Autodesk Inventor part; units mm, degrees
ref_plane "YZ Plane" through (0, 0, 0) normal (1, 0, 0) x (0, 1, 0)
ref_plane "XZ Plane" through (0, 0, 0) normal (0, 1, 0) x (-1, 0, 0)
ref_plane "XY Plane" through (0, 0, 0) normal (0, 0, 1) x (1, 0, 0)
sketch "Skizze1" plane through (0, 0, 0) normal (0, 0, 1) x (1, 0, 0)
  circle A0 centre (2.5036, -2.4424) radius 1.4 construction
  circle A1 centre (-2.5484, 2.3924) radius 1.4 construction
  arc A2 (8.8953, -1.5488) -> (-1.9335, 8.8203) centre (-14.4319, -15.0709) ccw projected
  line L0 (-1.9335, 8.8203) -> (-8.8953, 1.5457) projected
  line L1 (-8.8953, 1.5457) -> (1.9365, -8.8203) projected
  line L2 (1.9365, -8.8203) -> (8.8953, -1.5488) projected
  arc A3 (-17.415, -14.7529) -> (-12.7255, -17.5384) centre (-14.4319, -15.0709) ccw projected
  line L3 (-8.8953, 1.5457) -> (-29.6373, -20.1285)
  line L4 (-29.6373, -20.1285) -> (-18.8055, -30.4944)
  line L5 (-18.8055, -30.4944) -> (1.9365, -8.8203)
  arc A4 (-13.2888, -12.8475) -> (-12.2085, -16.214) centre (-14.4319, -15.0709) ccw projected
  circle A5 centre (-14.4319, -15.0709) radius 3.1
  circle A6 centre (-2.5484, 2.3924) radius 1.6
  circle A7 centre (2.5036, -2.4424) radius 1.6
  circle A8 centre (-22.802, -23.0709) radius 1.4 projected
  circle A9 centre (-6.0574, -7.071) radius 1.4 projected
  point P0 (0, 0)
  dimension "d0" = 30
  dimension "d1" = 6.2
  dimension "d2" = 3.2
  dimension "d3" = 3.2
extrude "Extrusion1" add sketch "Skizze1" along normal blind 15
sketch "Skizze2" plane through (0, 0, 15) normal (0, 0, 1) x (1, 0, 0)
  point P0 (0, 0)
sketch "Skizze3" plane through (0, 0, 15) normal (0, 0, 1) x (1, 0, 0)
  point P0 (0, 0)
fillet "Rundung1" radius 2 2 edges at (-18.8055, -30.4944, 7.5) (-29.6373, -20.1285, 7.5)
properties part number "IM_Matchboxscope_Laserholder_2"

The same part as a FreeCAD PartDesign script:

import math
import FreeCAD as App
import Part
import Sketcher

V = App.Vector
Q = App.Units.Quantity


def edges_at(feature, points):
    """Names of the edges that pass closest to the given points."""
    edges = feature.Shape.Edges
    near = lambda p: min(range(len(edges)), key=lambda i: edges[i].distToShape(Part.Vertex(*p))[0])
    return sorted({f"Edge{near(p) + 1}" for p in points})

doc = App.newDocument("Part")
body = doc.addObject("PartDesign::Body", "Body")

# Sketch on XY plane
sketch1 = body.newObject("Sketcher::SketchObject", "Sketch")
sketch1.AttachmentSupport = (doc.getObject("XY_Plane"), [""])
sketch1.MapMode = "FlatFace"
sketch1.addGeometry([
    Part.LineSegment(V(1.9, -8.8, 0), V(8.9, -1.5, 0)),  # 0
    Part.ArcOfCircle(Part.Circle(V(-14.4, -15.1, 0), V(0, 0, 1), 27), math.radians(30), math.radians(62)),  # 1
    Part.LineSegment(V(-1.9, 8.8, 0), V(-8.9, 1.5, 0)),  # 2
    Part.LineSegment(V(-8.9, 1.5, 0), V(-29.6, -20.1, 0)),  # 3
    Part.LineSegment(V(-29.6, -20.1, 0), V(-18.8, -30.5, 0)),  # 4
    Part.LineSegment(V(-18.8, -30.5, 0), V(1.9, -8.8, 0)),  # 5
    Part.Circle(V(2.5, -2.4, 0), V(0, 0, 1), 1.6),  # 6
    Part.Circle(V(-2.5, 2.4, 0), V(0, 0, 1), 1.6),  # 7
    Part.Circle(V(-6.1, -7.1, 0), V(0, 0, 1), 1.4),  # 8
    Part.Circle(V(-22.8, -23.1, 0), V(0, 0, 1), 1.4),  # 9
    Part.Circle(V(-14.4, -15.1, 0), V(0, 0, 1), 3.1),  # 10
], False)
sketch1.addConstraint([
    Sketcher.Constraint("Coincident", 0, 2, 1, 1),
    Sketcher.Constraint("Coincident", 1, 2, 2, 1),
    Sketcher.Constraint("Coincident", 2, 2, 3, 1),
    Sketcher.Constraint("Coincident", 3, 2, 4, 1),
    Sketcher.Constraint("Coincident", 4, 2, 5, 1),
    Sketcher.Constraint("Coincident", 5, 2, 0, 1),
    Sketcher.Constraint("Equal", 6, 7),
    Sketcher.Constraint("Equal", 8, 9),
    Sketcher.Constraint("Parallel", 0, 2),
    Sketcher.Constraint("Parallel", 2, 3),
    Sketcher.Constraint("Perpendicular", 3, 4),
    Sketcher.Constraint("Perpendicular", 4, 5),
    Sketcher.Constraint("Equal", 3, 5),
    Sketcher.Constraint("Diameter", 6, 3.2),
    Sketcher.Constraint("Diameter", 10, 6.2),
    Sketcher.Constraint("Distance", 3, 30.0),
    Sketcher.Constraint("Diameter", 8, 2.8),
    Sketcher.Constraint("DistanceY", 9, 3, 8, 3, 16.0),
    Sketcher.Constraint("DistanceY", 9, 3, 10, 3, 8.0),
    Sketcher.Constraint("Angle", 0, Q("46.2588 deg")),
    Sketcher.Constraint("Radius", 1, 26.9616),
    Sketcher.Constraint("DistanceY", 1, 3, -1, 1, 15.07),
    Sketcher.Constraint("DistanceX", 9, 3, 10, 3, 8.37),
    Sketcher.Constraint("DistanceX", 3, 2, 8, 3, 23.58),
    Sketcher.Constraint("Distance", 2, 10.069),
    Sketcher.Constraint("DistanceY", 8, 3, -1, 1, 7.071),
    Sketcher.Constraint("DistanceX", 9, 3, -1, 1, 22.802),
    Sketcher.Constraint("DistanceX", 7, 3, 6, 3, 5.052),
    Sketcher.Constraint("DistanceX", 8, 3, 6, 3, 8.561),
    Sketcher.Constraint("DistanceX", 1, 3, 0, 2, 23.326),
    Sketcher.Constraint("DistanceY", 7, 3, 1, 2, 6.428),
    Sketcher.Constraint("DistanceY", 0, 2, 1, 2, 10.369),
    Sketcher.Constraint("DistanceY", 6, 3, 2, 2, 3.988),
    Sketcher.Constraint("DistanceX", 1, 3, -1, 1, 14.4308),
])
pad1 = body.newObject("PartDesign::Pad", "Pad")
pad1.Profile = sketch1
pad1.Length = 15
doc.recompute()

fillet = body.newObject("PartDesign::Fillet", "Fillet")
fillet.Base = (pad1, edges_at(pad1, [(-18.805, -30.494, 7.5), (-29.637, -20.128, 7.5)]))
fillet.Radius = 2

doc.recompute()
